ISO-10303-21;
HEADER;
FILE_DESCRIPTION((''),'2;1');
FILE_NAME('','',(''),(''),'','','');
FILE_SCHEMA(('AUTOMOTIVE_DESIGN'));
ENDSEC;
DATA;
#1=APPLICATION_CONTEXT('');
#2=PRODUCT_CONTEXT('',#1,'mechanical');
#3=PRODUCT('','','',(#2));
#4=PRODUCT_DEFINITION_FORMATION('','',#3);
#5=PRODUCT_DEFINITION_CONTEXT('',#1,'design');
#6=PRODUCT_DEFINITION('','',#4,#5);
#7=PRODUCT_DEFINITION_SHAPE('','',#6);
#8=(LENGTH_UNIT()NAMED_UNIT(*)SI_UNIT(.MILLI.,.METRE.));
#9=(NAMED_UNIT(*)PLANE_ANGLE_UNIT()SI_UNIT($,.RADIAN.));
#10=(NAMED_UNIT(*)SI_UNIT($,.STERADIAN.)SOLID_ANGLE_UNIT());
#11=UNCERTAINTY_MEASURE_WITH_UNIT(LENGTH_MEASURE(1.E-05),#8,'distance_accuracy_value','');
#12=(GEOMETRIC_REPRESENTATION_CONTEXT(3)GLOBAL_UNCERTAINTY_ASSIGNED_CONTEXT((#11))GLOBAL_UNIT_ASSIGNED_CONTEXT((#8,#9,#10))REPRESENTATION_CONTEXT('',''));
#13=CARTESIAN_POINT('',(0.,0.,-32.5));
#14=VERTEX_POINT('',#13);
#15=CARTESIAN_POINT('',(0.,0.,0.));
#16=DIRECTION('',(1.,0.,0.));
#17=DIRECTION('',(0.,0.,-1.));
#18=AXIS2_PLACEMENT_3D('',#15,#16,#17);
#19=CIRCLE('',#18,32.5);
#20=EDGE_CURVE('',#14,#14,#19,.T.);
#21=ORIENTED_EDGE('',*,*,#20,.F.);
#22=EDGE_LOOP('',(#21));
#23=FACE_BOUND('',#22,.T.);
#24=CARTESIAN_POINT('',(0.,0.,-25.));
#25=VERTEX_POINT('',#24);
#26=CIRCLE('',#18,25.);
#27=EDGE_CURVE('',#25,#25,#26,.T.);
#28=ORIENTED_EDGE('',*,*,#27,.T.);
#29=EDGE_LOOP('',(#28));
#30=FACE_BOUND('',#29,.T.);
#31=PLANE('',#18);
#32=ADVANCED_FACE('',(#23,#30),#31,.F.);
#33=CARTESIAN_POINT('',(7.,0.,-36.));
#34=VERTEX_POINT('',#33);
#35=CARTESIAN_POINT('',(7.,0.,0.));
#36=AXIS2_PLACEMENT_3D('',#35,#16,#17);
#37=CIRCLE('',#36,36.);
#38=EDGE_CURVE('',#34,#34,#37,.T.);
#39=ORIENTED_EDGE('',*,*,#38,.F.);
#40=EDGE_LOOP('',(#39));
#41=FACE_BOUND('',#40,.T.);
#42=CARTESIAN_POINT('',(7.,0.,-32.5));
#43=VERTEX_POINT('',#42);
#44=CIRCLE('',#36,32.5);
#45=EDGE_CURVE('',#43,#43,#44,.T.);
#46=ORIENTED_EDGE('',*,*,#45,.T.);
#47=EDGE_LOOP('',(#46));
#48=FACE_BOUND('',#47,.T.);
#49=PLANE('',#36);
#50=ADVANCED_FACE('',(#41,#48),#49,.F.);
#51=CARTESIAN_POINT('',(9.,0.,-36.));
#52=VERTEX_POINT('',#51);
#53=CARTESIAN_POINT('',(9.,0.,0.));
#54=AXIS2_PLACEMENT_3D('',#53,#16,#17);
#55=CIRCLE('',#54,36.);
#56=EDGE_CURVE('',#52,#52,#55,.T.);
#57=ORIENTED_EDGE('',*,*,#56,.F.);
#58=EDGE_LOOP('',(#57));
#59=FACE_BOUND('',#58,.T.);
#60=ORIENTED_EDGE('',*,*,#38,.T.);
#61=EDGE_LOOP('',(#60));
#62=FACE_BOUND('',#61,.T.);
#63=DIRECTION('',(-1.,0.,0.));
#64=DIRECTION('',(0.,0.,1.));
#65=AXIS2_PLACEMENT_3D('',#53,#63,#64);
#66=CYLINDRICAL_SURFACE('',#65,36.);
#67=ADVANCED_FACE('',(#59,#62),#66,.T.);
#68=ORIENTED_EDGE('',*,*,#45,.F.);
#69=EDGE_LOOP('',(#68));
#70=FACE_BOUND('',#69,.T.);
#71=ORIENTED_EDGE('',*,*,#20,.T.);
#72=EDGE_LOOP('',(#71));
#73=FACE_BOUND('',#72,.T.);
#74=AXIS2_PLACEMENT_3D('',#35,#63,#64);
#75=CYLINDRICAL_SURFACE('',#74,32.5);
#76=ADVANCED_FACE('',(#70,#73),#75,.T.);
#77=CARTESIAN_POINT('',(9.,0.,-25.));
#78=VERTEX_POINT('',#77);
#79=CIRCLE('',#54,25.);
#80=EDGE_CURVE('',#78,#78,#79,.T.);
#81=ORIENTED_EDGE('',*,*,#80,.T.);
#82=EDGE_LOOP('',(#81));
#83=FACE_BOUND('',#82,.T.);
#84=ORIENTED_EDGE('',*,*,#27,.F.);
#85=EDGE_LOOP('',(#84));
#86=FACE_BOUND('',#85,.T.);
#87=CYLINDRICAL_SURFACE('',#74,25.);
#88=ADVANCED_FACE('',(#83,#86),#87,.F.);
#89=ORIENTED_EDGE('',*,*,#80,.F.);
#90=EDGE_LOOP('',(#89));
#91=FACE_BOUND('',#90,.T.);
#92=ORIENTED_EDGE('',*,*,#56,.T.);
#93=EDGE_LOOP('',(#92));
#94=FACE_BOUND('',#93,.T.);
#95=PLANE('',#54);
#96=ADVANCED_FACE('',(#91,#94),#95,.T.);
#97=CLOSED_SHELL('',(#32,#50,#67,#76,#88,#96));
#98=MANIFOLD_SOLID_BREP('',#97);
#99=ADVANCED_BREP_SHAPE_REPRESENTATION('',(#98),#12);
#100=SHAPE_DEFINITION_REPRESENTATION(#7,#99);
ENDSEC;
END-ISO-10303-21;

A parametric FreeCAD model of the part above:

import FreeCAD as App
import Part
import Sketcher

V = App.Vector

doc = App.newDocument("Part")
params = doc.addObject("Spreadsheet::Sheet", "Params")
for row, (alias, value) in enumerate([
    ("sketch1_diameter", "65 mm"),
    ("sketch1_diameter2", "50 mm"),
    ("pad1_length", "7 mm"),
    ("sketch2_diameter", "72 mm"),
    ("sketch2_diameter2", "50 mm"),
    ("pad2_length", "2 mm"),
], start=1):
    params.set(f"A{row}", alias)
    params.set(f"B{row}", "=" + value)
    params.setAlias(f"B{row}", alias)

body = doc.addObject("PartDesign::Body", "Body")

# Sketch on YZ plane
sketch1 = body.newObject("Sketcher::SketchObject", "Sketch")
sketch1.AttachmentSupport = (doc.getObject("YZ_Plane"), [""])
sketch1.MapMode = "FlatFace"
sketch1.addGeometry([
    Part.Circle(V(0, 0, 0), V(0, 0, 1), 32),
    Part.Circle(V(0, 0, 0), V(0, 0, 1), 25),
], False)
sketch1.addConstraint([
    Sketcher.Constraint("Coincident", 0, 3, -1, 1),
    Sketcher.Constraint("Coincident", 1, 3, -1, 1),
    Sketcher.Constraint("Diameter", 0, 65.0),
    Sketcher.Constraint("Diameter", 1, 50.0),
])
sketch1.setExpression("Constraints[2]", "Params.sketch1_diameter")
sketch1.setExpression("Constraints[3]", "Params.sketch1_diameter2")
pad1 = body.newObject("PartDesign::Pad", "Pad")
pad1.Profile = sketch1
pad1.setExpression("Length", "Params.pad1_length")

# Sketch on YZ plane
sketch2 = body.newObject("Sketcher::SketchObject", "Sketch001")
sketch2.AttachmentSupport = (doc.getObject("YZ_Plane"), [""])
sketch2.MapMode = "FlatFace"
sketch2.AttachmentOffset = App.Placement(V(0, 0, 7), App.Rotation())
sketch2.addGeometry([
    Part.Circle(V(0, 0, 0), V(0, 0, 1), 36),
    Part.Circle(V(0, 0, 0), V(0, 0, 1), 25),
], False)
sketch2.addConstraint([
    Sketcher.Constraint("Coincident", 0, 3, -1, 1),
    Sketcher.Constraint("Coincident", 1, 3, -1, 1),
    Sketcher.Constraint("Diameter", 0, 72.0),
    Sketcher.Constraint("Diameter", 1, 50.0),
])
sketch2.setExpression("Constraints[2]", "Params.sketch2_diameter")
sketch2.setExpression("Constraints[3]", "Params.sketch2_diameter2")
pad2 = body.newObject("PartDesign::Pad", "Pad001")
pad2.Profile = sketch2
pad2.setExpression("Length", "Params.pad2_length")

doc.recompute()
